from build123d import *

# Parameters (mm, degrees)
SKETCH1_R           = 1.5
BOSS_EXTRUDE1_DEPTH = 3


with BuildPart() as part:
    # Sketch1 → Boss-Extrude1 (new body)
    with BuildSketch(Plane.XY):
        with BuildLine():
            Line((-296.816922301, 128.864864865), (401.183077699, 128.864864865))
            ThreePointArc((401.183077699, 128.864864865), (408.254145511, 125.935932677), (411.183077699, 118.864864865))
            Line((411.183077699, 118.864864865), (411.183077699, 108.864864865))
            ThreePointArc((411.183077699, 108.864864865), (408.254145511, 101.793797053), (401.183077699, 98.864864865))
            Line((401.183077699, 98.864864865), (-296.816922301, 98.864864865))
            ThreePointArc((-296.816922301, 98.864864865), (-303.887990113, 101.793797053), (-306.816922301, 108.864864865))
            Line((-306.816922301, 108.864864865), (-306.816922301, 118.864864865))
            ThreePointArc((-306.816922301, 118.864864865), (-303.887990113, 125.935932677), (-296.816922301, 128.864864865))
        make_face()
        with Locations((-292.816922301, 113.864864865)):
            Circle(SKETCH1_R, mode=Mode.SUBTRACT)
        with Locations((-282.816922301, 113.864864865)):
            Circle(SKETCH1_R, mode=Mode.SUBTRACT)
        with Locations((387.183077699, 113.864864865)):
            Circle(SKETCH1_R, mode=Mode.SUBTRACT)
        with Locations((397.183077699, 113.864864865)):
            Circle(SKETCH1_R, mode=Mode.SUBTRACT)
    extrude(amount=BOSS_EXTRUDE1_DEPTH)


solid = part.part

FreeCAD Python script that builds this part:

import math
import FreeCAD as App
import Part
import Sketcher
Q = App.Units.Quantity

doc = App.newDocument("Part")
params = doc.addObject("Spreadsheet::Sheet", "Params")
for row, (alias, value) in enumerate([
    ("sketch1_diameter", "3 mm"),
    ("sketch1_radius", "10 mm"),
    ("sketch1_width", "698 mm"),
    ("sketch1_height", "10 mm"),
    ("pad1_length", "3 mm"),
], start=1):
    params.set(f"A{row}", alias)
    params.set(f"B{row}", "=" + value)
    params.setAlias(f"B{row}", alias)

body = doc.addObject("PartDesign::Body", "Body")

# Sketch on XY plane
sketch1 = body.newObject("Sketcher::SketchObject", "Sketch")
sketch1.AttachmentSupport = (doc.getObject("XY_Plane"), [""])
sketch1.MapMode = "FlatFace"
sketch1.addGeometry([
    Part.LineSegment(App.Vector(401.2, 128.9, 0), App.Vector(-296.8, 128.9, 0)),  # 0
    Part.ArcOfCircle(Part.Circle(App.Vector(-296.8, 118.9, 0), App.Vector(0, 0, 1), 10), math.radians(90), math.radians(180)),  # 1
    Part.LineSegment(App.Vector(-306.8, 118.9, 0), App.Vector(-306.8, 108.9, 0)),  # 2
    Part.ArcOfCircle(Part.Circle(App.Vector(-296.8, 108.9, 0), App.Vector(0, 0, 1), 10), math.radians(180), math.radians(270)),  # 3
    Part.LineSegment(App.Vector(-296.8, 98.9, 0), App.Vector(401.2, 98.9, 0)),  # 4
    Part.ArcOfCircle(Part.Circle(App.Vector(401.2, 108.9, 0), App.Vector(0, 0, 1), 10), math.radians(-90), math.radians(0)),  # 5
    Part.LineSegment(App.Vector(411.2, 108.9, 0), App.Vector(411.2, 118.9, 0)),  # 6
    Part.ArcOfCircle(Part.Circle(App.Vector(401.2, 118.9, 0), App.Vector(0, 0, 1), 10), math.radians(0), math.radians(90)),  # 7
    Part.Circle(App.Vector(397.2, 113.9, 0), App.Vector(0, 0, 1), 1.5),  # 8
    Part.Circle(App.Vector(387.2, 113.9, 0), App.Vector(0, 0, 1), 1.5),  # 9
    Part.Circle(App.Vector(-282.8, 113.9, 0), App.Vector(0, 0, 1), 1.5),  # 10
    Part.Circle(App.Vector(-292.8, 113.9, 0), App.Vector(0, 0, 1), 1.5),  # 11
], False)
sketch1.addConstraint([
    Sketcher.Constraint("Tangent", 0, 2, 1, 1),
    Sketcher.Constraint("Tangent", 1, 2, 2, 1),
    Sketcher.Constraint("Tangent", 2, 2, 3, 1),
    Sketcher.Constraint("Tangent", 3, 2, 4, 1),
    Sketcher.Constraint("Tangent", 4, 2, 5, 1),
    Sketcher.Constraint("Tangent", 5, 2, 6, 1),
    Sketcher.Constraint("Tangent", 6, 2, 7, 1),
    Sketcher.Constraint("Tangent", 7, 2, 0, 1),
    Sketcher.Constraint("Horizontal", 0),
    Sketcher.Constraint("Vertical", 2),
    Sketcher.Constraint("Horizontal", 4),
    Sketcher.Constraint("Vertical", 6),
    Sketcher.Constraint("Equal", 1, 3),
    Sketcher.Constraint("Equal", 3, 5),
    Sketcher.Constraint("Equal", 5, 7),
    Sketcher.Constraint("Equal", 8, 9),
    Sketcher.Constraint("Equal", 9, 10),
    Sketcher.Constraint("Equal", 10, 11),
    Sketcher.Constraint("Horizontal", 8, 3, 9, 3),
    Sketcher.Constraint("Horizontal", 9, 3, 10, 3),
    Sketcher.Constraint("Horizontal", 10, 3, 11, 3),
    Sketcher.Constraint("Diameter", 8, Q("3 mm")),
    Sketcher.Constraint("Radius", 1, Q("10 mm")),
    Sketcher.Constraint("DistanceX", 0, 2, 0, 1, Q("698 mm")),
    Sketcher.Constraint("DistanceY", 2, 2, 2, 1, Q("10 mm")),
    Sketcher.Constraint("DistanceX", 8, 3, 5, 3, Q("4 mm")),
    Sketcher.Constraint("DistanceY", 5, 3, 8, 3, Q("5 mm")),
    Sketcher.Constraint("DistanceX", 9, 3, 8, 3, Q("10 mm")),
    Sketcher.Constraint("DistanceX", 1, 3, 10, 3, Q("14 mm")),
    Sketcher.Constraint("DistanceX", 1, 3, 11, 3, Q("4 mm")),
    Sketcher.Constraint("DistanceX", 1, 3, -1, 1, Q("296.816922 mm")),
    Sketcher.Constraint("DistanceY", -1, 1, 1, 3, Q("118.864865 mm")),
])
sketch1.setExpression("Constraints[21]", "Params.sketch1_diameter")
sketch1.setExpression("Constraints[22]", "Params.sketch1_radius")
sketch1.setExpression("Constraints[23]", "Params.sketch1_width")
sketch1.setExpression("Constraints[24]", "Params.sketch1_height")
pad1 = body.newObject("PartDesign::Pad", "Pad")
pad1.Profile = sketch1
pad1.setExpression("Length", "Params.pad1_length")

doc.recompute()
